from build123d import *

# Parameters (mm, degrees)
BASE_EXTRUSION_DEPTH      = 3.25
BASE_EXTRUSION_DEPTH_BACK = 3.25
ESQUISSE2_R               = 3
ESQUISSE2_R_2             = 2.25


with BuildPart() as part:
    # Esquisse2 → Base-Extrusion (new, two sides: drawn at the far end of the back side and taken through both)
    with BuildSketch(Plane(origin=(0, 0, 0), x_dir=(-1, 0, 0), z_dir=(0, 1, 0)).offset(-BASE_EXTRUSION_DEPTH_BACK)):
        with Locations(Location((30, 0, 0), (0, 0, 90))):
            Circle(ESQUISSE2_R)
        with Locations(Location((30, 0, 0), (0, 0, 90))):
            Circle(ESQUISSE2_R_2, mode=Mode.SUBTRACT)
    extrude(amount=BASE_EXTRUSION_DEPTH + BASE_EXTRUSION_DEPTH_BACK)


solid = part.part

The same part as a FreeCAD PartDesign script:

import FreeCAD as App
import Part
import Sketcher
Q = App.Units.Quantity

doc = App.newDocument("Part")
body = doc.addObject("PartDesign::Body", "Body")

sketch1 = doc.addObject("Sketcher::SketchObject", "Sketch")
body.addObject(sketch1)
sketch1.AttachmentSupport = (doc.XZ_Plane, [""])
sketch1.MapMode = "FlatFace"
sketch1.addGeometry([
    Part.Circle(App.Vector(-30, 0, 0), App.Vector(0, 0, 1), 3),
    Part.Circle(App.Vector(-30, 0, 0), App.Vector(0, 0, 1), 2.2),
], False)
sketch1.addConstraint([
    Sketcher.Constraint("Coincident", 1, 3, 0, 3),
    Sketcher.Constraint("PointOnObject", 0, 3, -1),
    Sketcher.Constraint("Diameter", 0, Q("6 mm")),
    Sketcher.Constraint("Diameter", 1, Q("4.5 mm")),
    Sketcher.Constraint("DistanceX", 0, 3, -1, 1, Q("30 mm")),
])
pad1 = doc.addObject("PartDesign::Pad", "Pad")
body.addObject(pad1)
pad1.Profile = sketch1
pad1.Type = "TwoLengths"
pad1.Length = 3.25
pad1.Length2 = 3.25
pad1.Reversed = True

doc.recompute()
